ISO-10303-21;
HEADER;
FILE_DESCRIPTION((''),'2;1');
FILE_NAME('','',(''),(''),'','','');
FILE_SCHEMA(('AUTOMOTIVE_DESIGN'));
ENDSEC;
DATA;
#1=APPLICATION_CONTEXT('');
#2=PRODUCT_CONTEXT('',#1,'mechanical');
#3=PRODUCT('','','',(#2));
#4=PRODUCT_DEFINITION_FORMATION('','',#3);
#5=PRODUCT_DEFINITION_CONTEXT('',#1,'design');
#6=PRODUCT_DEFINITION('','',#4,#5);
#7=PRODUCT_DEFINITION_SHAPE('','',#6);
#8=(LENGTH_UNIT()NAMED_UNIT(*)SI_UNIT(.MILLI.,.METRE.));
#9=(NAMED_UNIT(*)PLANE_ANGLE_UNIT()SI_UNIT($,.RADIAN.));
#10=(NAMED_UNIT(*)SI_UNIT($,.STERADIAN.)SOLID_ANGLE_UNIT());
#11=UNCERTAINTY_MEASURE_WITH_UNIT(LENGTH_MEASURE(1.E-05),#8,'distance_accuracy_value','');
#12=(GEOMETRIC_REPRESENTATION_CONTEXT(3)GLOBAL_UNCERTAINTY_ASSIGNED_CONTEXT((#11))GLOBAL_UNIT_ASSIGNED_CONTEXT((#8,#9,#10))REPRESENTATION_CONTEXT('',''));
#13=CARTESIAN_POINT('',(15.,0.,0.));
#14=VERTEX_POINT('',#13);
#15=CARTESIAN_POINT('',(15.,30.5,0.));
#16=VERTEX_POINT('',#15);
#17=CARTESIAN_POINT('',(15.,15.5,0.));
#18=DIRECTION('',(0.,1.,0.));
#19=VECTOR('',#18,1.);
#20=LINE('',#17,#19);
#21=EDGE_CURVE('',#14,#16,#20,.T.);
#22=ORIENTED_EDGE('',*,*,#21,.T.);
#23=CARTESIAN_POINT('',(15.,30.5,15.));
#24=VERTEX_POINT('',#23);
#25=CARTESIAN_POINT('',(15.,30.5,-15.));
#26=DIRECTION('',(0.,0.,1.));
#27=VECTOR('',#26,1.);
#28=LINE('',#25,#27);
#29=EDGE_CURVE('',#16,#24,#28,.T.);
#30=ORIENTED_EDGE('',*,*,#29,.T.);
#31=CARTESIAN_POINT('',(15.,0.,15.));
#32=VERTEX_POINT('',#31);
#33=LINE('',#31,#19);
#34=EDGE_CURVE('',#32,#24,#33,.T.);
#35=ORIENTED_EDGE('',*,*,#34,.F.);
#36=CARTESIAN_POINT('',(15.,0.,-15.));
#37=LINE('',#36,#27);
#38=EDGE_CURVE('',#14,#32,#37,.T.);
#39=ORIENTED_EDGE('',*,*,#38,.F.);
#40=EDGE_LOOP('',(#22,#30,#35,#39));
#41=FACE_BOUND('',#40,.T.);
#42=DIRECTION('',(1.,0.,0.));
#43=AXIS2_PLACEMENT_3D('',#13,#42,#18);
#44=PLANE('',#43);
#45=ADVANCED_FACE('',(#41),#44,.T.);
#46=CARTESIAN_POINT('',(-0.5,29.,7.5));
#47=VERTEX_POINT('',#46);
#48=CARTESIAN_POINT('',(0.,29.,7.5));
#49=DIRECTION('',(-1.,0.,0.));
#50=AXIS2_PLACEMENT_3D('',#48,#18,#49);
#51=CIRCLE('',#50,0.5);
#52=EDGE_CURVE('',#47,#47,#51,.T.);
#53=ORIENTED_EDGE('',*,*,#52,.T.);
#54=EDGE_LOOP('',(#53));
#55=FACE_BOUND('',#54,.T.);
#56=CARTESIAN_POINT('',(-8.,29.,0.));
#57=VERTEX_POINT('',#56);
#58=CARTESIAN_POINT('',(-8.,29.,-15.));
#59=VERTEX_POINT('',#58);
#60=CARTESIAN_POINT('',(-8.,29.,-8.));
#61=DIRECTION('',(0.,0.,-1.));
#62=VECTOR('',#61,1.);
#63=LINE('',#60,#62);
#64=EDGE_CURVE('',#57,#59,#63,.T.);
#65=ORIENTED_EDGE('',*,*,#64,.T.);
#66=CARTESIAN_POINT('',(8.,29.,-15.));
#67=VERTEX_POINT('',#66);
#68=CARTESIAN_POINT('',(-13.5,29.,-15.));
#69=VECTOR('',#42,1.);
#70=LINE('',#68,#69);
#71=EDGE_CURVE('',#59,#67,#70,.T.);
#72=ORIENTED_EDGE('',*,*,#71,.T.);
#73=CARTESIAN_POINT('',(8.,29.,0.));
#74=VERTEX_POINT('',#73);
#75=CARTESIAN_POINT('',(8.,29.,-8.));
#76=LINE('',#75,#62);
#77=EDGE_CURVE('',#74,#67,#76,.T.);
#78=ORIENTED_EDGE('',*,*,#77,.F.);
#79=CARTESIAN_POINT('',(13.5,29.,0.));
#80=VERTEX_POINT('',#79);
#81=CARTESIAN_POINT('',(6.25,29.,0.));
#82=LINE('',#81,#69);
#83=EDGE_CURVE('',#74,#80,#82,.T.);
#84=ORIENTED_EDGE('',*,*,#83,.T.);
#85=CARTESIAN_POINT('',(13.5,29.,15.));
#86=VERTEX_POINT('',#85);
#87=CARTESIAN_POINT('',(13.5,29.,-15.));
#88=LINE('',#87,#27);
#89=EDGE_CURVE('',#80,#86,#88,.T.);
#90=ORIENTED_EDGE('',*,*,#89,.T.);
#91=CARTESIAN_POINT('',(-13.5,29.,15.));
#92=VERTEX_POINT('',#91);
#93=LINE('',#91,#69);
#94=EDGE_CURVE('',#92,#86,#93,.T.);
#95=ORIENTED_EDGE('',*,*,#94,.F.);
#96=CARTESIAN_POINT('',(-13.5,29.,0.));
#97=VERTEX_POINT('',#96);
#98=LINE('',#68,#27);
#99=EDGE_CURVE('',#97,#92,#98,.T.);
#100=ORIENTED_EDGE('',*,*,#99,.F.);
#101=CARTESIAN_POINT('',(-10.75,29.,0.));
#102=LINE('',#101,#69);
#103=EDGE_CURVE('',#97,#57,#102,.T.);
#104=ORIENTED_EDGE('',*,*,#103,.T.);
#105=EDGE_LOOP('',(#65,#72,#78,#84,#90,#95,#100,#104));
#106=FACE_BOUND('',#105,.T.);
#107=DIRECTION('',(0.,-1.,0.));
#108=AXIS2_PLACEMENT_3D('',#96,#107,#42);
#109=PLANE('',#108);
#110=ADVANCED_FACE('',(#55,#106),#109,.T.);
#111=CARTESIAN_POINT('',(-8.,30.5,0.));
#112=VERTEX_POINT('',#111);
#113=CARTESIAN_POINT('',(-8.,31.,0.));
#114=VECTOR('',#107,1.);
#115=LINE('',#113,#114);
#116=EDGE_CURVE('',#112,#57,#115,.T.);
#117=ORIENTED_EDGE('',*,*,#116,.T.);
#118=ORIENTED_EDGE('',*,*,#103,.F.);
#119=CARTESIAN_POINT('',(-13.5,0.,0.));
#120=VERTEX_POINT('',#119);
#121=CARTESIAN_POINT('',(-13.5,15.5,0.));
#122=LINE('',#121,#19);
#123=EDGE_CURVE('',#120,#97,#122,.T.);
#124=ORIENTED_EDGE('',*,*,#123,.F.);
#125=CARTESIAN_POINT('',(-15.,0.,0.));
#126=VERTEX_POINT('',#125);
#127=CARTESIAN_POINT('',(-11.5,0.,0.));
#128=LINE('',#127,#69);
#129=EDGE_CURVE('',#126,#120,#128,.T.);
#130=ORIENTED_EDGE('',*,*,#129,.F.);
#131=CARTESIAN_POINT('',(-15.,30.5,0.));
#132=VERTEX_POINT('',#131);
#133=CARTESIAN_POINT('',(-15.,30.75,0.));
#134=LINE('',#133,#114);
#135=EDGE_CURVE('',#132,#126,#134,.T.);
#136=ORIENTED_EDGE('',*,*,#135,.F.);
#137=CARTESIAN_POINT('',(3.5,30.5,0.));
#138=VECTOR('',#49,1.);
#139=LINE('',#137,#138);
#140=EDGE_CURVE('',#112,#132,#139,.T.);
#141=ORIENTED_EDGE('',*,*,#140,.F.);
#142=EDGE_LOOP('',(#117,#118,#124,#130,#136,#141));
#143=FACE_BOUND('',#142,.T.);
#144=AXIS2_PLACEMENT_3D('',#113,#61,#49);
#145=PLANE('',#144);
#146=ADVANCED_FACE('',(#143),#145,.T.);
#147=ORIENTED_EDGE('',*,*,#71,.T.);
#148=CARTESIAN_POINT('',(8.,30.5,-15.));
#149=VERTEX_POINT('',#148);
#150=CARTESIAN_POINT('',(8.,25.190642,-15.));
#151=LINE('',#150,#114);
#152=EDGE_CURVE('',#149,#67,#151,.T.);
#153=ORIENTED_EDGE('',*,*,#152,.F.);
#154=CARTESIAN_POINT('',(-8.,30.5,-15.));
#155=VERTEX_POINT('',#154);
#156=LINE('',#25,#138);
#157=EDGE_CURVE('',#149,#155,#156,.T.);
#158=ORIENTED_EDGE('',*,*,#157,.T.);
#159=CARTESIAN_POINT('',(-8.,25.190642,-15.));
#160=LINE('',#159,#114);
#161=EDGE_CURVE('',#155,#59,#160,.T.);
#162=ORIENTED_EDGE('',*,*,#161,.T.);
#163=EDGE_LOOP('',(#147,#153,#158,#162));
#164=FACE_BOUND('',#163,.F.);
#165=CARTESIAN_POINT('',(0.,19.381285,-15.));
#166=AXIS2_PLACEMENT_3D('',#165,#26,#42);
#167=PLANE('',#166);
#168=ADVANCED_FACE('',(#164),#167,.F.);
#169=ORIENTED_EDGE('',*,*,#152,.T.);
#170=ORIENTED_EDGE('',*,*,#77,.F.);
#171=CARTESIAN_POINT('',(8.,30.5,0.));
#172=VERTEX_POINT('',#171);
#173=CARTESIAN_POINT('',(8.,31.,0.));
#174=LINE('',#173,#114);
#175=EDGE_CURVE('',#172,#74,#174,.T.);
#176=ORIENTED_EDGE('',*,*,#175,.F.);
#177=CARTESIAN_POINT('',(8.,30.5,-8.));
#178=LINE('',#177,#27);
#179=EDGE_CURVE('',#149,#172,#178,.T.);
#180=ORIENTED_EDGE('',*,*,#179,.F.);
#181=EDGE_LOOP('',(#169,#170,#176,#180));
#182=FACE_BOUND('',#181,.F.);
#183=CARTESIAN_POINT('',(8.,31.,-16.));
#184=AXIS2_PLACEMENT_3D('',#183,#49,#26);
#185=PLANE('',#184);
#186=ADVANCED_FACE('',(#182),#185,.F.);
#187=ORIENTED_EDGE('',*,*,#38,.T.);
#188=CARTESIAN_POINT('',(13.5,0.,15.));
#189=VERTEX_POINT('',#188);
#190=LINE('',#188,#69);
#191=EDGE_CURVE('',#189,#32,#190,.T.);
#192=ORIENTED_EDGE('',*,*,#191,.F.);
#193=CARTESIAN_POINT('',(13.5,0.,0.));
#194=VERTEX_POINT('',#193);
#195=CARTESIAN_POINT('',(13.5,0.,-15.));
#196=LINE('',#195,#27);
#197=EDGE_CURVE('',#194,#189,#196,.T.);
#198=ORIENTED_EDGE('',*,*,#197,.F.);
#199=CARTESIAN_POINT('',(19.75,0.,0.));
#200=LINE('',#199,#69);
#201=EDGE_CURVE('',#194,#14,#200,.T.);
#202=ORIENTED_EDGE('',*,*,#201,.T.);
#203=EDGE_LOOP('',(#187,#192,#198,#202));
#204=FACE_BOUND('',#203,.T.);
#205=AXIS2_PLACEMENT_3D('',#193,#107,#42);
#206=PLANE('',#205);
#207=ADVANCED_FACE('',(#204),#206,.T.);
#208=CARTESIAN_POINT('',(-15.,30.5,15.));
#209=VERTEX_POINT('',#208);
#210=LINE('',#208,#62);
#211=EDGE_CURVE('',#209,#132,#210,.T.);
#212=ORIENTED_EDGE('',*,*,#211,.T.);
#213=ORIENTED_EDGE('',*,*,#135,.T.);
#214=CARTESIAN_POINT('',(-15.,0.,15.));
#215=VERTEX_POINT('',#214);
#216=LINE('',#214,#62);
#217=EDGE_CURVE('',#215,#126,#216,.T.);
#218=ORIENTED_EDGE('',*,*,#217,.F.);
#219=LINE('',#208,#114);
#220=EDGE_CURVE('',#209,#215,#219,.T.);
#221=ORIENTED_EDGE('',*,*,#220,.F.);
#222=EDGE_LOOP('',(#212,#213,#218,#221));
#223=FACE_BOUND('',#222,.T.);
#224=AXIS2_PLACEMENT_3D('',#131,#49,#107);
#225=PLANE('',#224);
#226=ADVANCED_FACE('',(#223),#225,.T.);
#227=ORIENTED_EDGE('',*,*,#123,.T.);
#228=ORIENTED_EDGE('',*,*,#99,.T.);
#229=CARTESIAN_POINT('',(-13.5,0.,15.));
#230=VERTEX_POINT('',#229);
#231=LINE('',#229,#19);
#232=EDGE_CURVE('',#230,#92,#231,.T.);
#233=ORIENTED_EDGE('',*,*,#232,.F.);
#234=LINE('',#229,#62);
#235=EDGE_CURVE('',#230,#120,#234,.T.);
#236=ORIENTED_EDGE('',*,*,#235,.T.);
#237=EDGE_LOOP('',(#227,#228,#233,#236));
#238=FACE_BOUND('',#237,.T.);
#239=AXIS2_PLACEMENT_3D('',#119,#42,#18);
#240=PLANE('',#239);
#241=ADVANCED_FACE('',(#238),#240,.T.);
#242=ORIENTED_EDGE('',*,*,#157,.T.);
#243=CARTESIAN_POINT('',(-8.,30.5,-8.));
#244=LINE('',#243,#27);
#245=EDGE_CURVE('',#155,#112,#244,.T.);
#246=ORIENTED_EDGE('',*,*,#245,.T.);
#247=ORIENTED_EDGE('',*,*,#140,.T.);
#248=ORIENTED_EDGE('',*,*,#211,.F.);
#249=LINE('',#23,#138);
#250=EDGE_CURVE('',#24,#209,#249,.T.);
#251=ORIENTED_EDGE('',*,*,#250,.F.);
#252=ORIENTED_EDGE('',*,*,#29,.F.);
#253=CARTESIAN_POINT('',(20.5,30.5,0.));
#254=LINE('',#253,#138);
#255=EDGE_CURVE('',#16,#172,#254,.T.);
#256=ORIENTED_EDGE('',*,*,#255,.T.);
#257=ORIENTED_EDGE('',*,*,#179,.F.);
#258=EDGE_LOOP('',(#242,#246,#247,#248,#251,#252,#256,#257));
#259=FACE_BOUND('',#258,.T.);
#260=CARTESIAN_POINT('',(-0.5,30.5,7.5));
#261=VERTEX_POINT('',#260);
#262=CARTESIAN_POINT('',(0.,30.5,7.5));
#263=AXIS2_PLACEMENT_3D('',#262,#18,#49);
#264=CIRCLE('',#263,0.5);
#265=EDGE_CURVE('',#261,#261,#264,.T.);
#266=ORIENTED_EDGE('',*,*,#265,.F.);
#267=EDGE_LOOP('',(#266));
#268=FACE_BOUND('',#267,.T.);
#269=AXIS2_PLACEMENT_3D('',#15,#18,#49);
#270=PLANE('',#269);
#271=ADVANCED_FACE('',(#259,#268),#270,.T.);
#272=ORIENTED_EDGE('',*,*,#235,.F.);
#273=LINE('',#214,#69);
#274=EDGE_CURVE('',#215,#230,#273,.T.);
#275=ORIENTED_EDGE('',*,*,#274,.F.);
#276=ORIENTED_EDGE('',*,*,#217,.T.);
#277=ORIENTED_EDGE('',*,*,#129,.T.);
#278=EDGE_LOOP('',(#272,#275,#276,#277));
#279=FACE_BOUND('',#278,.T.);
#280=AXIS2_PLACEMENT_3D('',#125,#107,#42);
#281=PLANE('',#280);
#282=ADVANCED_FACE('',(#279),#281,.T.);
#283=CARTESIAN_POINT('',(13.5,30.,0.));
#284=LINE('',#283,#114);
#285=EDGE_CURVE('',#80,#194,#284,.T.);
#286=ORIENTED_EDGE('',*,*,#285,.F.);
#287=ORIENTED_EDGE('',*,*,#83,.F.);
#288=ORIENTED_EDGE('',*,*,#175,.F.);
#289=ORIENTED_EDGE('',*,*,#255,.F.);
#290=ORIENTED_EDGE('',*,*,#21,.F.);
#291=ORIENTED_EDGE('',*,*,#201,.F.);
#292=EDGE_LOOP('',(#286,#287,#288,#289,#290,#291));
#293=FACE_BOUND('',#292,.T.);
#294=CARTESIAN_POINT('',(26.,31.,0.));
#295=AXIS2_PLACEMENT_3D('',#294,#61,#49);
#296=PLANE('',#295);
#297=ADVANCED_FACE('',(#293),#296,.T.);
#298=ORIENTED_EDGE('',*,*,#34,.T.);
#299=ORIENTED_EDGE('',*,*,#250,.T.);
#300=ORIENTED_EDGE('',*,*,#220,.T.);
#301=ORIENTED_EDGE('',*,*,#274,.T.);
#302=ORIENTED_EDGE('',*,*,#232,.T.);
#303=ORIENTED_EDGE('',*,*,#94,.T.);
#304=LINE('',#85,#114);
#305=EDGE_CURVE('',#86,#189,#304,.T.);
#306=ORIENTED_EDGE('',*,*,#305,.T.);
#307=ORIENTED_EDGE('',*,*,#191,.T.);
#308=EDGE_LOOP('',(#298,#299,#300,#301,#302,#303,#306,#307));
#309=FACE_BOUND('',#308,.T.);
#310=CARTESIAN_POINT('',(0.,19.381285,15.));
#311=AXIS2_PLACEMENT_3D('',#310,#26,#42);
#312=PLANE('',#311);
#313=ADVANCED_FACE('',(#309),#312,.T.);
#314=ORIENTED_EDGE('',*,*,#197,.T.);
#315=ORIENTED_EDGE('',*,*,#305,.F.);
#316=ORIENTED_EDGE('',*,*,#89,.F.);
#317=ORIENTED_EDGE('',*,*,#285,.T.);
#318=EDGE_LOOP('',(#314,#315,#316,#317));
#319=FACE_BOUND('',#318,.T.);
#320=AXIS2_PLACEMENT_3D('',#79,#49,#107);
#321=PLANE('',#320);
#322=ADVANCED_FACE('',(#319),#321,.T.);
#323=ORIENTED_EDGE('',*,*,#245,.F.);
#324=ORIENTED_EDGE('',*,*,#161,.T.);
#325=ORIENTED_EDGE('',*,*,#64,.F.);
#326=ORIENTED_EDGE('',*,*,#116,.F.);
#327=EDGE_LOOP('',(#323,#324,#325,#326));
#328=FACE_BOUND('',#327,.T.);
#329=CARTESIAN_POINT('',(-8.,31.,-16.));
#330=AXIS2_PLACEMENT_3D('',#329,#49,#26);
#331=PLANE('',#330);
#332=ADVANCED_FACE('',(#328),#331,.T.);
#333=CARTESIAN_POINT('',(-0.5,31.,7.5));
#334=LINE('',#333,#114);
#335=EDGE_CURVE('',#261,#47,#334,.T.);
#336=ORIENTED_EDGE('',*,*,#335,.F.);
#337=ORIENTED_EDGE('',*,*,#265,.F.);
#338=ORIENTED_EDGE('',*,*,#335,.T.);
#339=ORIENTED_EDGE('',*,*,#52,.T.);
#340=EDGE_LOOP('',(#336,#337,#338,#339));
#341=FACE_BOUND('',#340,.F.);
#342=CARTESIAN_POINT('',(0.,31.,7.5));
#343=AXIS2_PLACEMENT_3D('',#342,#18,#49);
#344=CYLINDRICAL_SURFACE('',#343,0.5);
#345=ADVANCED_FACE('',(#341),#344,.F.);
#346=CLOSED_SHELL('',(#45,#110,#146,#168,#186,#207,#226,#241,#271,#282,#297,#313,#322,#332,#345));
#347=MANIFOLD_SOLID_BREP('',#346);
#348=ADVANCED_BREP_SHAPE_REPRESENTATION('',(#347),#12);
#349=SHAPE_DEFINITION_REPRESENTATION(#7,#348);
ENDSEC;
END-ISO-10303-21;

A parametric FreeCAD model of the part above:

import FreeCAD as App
import Part
import Sketcher
from FreeCAD import Vector
Q = App.Units.Quantity

doc = App.newDocument("Part")
params = doc.addObject("Spreadsheet::Sheet", "Params")
for row, (alias, value) in enumerate([
    ("sketch1_diameter", "1 mm"),
    ("sketch1_width", "18 mm"),
    ("sketch1_height", "16 mm"),
    ("pad1_length", "32 mm"),
    ("sketch2_width", "27 mm"),
    ("sketch2_width2", "30 mm"),
    ("sketch2_height", "29 mm"),
    ("sketch2_height2", "30.5 mm"),
    ("pad2_length", "30 mm"),
], start=1):
    params.set(f"A{row}", alias)
    params.set(f"B{row}", "=" + value)
    params.setAlias(f"B{row}", alias)

body = doc.addObject("PartDesign::Body", "Body")
body.AllowCompound = True

sketch1 = body.newObject("Sketcher::SketchObject", "Sketch")
sketch1.AttachmentSupport = (doc.getObject("XZ_Plane"), [""])
sketch1.MapMode = "FlatFace"
sketch1.AttachmentOffset = App.Placement(Vector(0, 0, -31), App.Rotation())
sketch1.addGeometry(Part.Circle(Vector(0, 7.5, 0), Vector(0, 0, 1), 0.5), False)
sketch1.addGeometry(Part.LineSegment(Vector(26, 0, 0), Vector(26, -16, 0)), False)
sketch1.addGeometry(Part.LineSegment(Vector(26, -16, 0), Vector(8, -16, 0)), False)
sketch1.addGeometry(Part.LineSegment(Vector(8, -16, 0), Vector(8, 0, 0)), False)
sketch1.addGeometry(Part.LineSegment(Vector(8, 0, 0), Vector(26, 0, 0)), False)
sketch1.addGeometry(Part.LineSegment(Vector(-8, 0, 0), Vector(-8, -16, 0)), False)
sketch1.addGeometry(Part.LineSegment(Vector(-8, -16, 0), Vector(-26, -16, 0)), False)
sketch1.addGeometry(Part.LineSegment(Vector(-26, -16, 0), Vector(-26, 0, 0)), False)
sketch1.addGeometry(Part.LineSegment(Vector(-26, 0, 0), Vector(-8, 0, 0)), False)
sketch1.addConstraint(Sketcher.Constraint("Coincident", 1, 2, 2, 1))
sketch1.addConstraint(Sketcher.Constraint("Coincident", 2, 2, 3, 1))
sketch1.addConstraint(Sketcher.Constraint("Coincident", 3, 2, 4, 1))
sketch1.addConstraint(Sketcher.Constraint("Coincident", 4, 2, 1, 1))
sketch1.addConstraint(Sketcher.Constraint("Coincident", 5, 2, 6, 1))
sketch1.addConstraint(Sketcher.Constraint("Coincident", 6, 2, 7, 1))
sketch1.addConstraint(Sketcher.Constraint("Coincident", 7, 2, 8, 1))
sketch1.addConstraint(Sketcher.Constraint("Coincident", 8, 2, 5, 1))
sketch1.addConstraint(Sketcher.Constraint("Vertical", 1))
sketch1.addConstraint(Sketcher.Constraint("Horizontal", 2))
sketch1.addConstraint(Sketcher.Constraint("Vertical", 3))
sketch1.addConstraint(Sketcher.Constraint("Horizontal", 4))
sketch1.addConstraint(Sketcher.Constraint("Vertical", 5))
sketch1.addConstraint(Sketcher.Constraint("Horizontal", 6))
sketch1.addConstraint(Sketcher.Constraint("Vertical", 7))
sketch1.addConstraint(Sketcher.Constraint("Horizontal", 8))
sketch1.addConstraint(Sketcher.Constraint("Symmetric", 4, 2, 7, 2, -1, 1))
sketch1.addConstraint(Sketcher.Constraint("Symmetric", 2, 2, 5, 2, -2))
sketch1.addConstraint(Sketcher.Constraint("PointOnObject", 0, 3, -2))
sketch1.addConstraint(Sketcher.Constraint("PointOnObject", 3, 2, -1))
sketch1.addConstraint(Sketcher.Constraint("Diameter", 0, Q("1 mm")))
sketch1.addConstraint(Sketcher.Constraint("DistanceX", 2, 2, 2, 1, Q("18 mm")))
sketch1.addConstraint(Sketcher.Constraint("DistanceY", 1, 2, 1, 1, Q("16 mm")))
sketch1.addConstraint(Sketcher.Constraint("DistanceX", -1, 1, 1, 2, Q("26 mm")))
sketch1.addConstraint(Sketcher.Constraint("DistanceY", -1, 1, 0, 3, Q("7.5 mm")))
sketch1.setExpression("Constraints[20]", "Params.sketch1_diameter")
sketch1.setExpression("Constraints[21]", "Params.sketch1_width")
sketch1.setExpression("Constraints[22]", "Params.sketch1_height")
pad1 = body.newObject("PartDesign::Pad", "Pad")
pad1.Profile = sketch1
pad1.setExpression("Length", "Params.pad1_length")
body2 = doc.addObject("PartDesign::Body", "Body001")

sketch2 = body2.newObject("Sketcher::SketchObject", "Sketch001")
sketch2.AttachmentSupport = (doc.getObject("XY_Plane001"), [""])
sketch2.MapMode = "FlatFace"
sketch2.addGeometry(Part.LineSegment(Vector(-13.5, 0, 0), Vector(-13.5, 29, 0)), False)
sketch2.addGeometry(Part.LineSegment(Vector(-13.5, 29, 0), Vector(13.5, 29, 0)), False)
sketch2.addGeometry(Part.LineSegment(Vector(13.5, 29, 0), Vector(13.5, 0, 0)), False)
sketch2.addGeometry(Part.LineSegment(Vector(13.5, 0, 0), Vector(15, 0, 0)), False)
sketch2.addGeometry(Part.LineSegment(Vector(15, 0, 0), Vector(15, 30.5, 0)), False)
sketch2.addGeometry(Part.LineSegment(Vector(15, 30.5, 0), Vector(-15, 30.5, 0)), False)
sketch2.addGeometry(Part.LineSegment(Vector(-15, 30.5, 0), Vector(-15, 0, 0)), False)
sketch2.addGeometry(Part.LineSegment(Vector(-15, 0, 0), Vector(-13.5, 0, 0)), False)
sketch2.addConstraint(Sketcher.Constraint("Coincident", 0, 2, 1, 1))
sketch2.addConstraint(Sketcher.Constraint("Coincident", 1, 2, 2, 1))
sketch2.addConstraint(Sketcher.Constraint("Coincident", 2, 2, 3, 1))
sketch2.addConstraint(Sketcher.Constraint("Coincident", 3, 2, 4, 1))
sketch2.addConstraint(Sketcher.Constraint("Coincident", 4, 2, 5, 1))
sketch2.addConstraint(Sketcher.Constraint("Coincident", 5, 2, 6, 1))
sketch2.addConstraint(Sketcher.Constraint("Coincident", 6, 2, 7, 1))
sketch2.addConstraint(Sketcher.Constraint("Coincident", 7, 2, 0, 1))
sketch2.addConstraint(Sketcher.Constraint("Vertical", 0))
sketch2.addConstraint(Sketcher.Constraint("Horizontal", 1))
sketch2.addConstraint(Sketcher.Constraint("Vertical", 2))
sketch2.addConstraint(Sketcher.Constraint("Horizontal", 3))
sketch2.addConstraint(Sketcher.Constraint("Vertical", 4))
sketch2.addConstraint(Sketcher.Constraint("Horizontal", 5))
sketch2.addConstraint(Sketcher.Constraint("Vertical", 6))
sketch2.addConstraint(Sketcher.Constraint("Horizontal", 7))
sketch2.addConstraint(Sketcher.Constraint("Symmetric", 3, 2, 6, 2, -1, 1))
sketch2.addConstraint(Sketcher.Constraint("Symmetric", 2, 2, 7, 2, -2))
sketch2.addConstraint(Sketcher.Constraint("DistanceX", 1, 1, 1, 2, Q("27 mm")))
sketch2.addConstraint(Sketcher.Constraint("DistanceX", 5, 2, 5, 1, Q("30 mm")))
sketch2.addConstraint(Sketcher.Constraint("DistanceY", 0, 1, 0, 2, Q("29 mm")))
sketch2.addConstraint(Sketcher.Constraint("DistanceY", 4, 1, 4, 2, Q("30.5 mm")))
sketch2.setExpression("Constraints[18]", "Params.sketch2_width")
sketch2.setExpression("Constraints[19]", "Params.sketch2_width2")
sketch2.setExpression("Constraints[20]", "Params.sketch2_height")
sketch2.setExpression("Constraints[21]", "Params.sketch2_height2")
pad2 = body2.newObject("PartDesign::Pad", "Pad001")
pad2.Profile = sketch2
pad2.setExpression("Length", "Params.pad2_length")
pad2.Midplane = True
doc.recompute()

boolean = body2.newObject("PartDesign::Boolean", "Boolean")
boolean.Type = "Cut"
boolean.addObjects([body])

doc.recompute()
